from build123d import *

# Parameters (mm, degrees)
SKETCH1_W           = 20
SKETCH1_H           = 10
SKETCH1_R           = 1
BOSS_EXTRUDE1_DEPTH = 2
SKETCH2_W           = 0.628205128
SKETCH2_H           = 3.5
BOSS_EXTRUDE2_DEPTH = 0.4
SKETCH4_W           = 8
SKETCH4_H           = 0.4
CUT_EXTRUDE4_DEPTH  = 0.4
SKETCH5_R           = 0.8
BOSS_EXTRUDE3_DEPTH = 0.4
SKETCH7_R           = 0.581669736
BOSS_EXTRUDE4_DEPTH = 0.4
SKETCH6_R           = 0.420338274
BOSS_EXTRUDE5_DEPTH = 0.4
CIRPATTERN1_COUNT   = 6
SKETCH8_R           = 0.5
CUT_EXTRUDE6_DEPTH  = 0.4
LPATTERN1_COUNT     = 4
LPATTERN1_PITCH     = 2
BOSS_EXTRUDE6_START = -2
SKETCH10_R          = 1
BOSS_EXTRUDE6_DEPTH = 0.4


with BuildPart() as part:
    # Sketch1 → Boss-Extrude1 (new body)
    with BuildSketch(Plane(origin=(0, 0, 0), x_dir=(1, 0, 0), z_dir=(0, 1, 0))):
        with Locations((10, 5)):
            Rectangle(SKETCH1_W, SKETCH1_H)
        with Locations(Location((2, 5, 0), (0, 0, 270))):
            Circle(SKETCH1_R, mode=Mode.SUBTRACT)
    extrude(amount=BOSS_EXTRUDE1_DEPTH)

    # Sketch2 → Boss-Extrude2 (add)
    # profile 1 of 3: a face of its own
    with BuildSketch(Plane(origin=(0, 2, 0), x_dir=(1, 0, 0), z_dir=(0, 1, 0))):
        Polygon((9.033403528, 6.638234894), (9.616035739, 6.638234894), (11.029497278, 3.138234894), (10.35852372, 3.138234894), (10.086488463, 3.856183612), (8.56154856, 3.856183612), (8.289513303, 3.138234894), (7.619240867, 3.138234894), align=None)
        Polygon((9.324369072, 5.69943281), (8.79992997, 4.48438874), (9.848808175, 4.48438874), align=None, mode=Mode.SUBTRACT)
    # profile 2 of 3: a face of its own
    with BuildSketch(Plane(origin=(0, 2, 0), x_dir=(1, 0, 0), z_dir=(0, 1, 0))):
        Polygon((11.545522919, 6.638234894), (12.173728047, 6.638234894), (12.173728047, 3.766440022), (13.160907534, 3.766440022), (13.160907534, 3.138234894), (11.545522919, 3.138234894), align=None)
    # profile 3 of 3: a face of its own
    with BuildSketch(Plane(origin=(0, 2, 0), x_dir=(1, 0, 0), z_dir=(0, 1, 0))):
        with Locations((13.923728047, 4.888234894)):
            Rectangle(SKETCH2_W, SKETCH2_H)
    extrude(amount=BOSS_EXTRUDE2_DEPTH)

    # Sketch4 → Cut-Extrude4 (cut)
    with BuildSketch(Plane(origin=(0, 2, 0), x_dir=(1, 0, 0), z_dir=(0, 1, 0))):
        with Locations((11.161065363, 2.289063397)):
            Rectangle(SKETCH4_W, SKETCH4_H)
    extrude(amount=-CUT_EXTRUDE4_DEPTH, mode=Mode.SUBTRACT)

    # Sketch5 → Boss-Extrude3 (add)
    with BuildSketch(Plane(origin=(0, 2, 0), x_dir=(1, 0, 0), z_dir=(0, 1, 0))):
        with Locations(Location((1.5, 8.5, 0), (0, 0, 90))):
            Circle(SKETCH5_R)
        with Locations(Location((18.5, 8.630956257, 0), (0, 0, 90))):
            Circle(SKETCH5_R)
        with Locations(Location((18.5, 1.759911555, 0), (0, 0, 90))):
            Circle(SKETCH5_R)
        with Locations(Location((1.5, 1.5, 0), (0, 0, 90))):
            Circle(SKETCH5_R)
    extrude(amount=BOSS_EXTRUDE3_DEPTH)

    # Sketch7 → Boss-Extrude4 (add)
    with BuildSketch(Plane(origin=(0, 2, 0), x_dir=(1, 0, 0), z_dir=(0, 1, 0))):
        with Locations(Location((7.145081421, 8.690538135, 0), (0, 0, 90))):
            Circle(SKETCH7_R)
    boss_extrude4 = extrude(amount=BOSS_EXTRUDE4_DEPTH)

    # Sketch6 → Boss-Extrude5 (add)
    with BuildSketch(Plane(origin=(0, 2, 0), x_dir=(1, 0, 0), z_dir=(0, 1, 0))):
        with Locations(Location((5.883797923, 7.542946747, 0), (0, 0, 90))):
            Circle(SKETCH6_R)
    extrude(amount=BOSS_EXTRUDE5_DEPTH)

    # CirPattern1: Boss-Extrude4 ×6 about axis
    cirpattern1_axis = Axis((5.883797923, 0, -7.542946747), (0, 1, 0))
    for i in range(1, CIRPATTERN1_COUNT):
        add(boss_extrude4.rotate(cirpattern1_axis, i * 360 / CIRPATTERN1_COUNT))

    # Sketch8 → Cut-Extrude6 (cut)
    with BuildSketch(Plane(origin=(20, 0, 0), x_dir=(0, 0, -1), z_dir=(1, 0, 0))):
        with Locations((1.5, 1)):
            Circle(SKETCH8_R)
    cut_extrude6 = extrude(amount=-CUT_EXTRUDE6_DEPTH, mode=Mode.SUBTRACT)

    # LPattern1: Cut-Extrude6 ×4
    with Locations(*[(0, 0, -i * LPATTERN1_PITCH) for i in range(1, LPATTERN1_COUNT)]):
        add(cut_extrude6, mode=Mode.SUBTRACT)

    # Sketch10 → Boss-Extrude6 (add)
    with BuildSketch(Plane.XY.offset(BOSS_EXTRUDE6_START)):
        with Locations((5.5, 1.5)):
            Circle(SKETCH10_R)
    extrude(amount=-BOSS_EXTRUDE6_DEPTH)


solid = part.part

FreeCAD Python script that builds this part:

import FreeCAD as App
import Part
import Sketcher
from FreeCAD import Vector
Q = App.Units.Quantity

doc = App.newDocument("Part")
params = doc.addObject("Spreadsheet::Sheet", "Params")
for row, (alias, value) in enumerate([
    ("sketch1_diameter", "2 mm"),
    ("sketch1_width", "20 mm"),
    ("sketch1_height", "10 mm"),
    ("pad1_length", "2 mm"),
    ("sketch2_height", "3.5 mm"),
    ("pad2_length", "0.4 mm"),
    ("sketch3_width", "8 mm"),
    ("sketch3_height", "0.4 mm"),
    ("pocket1_length", "0.4 mm"),
    ("sketch4_diameter", "1.6 mm"),
    ("pad3_length", "0.4 mm"),
    ("pad4_length", "0.4 mm"),
    ("pad5_length", "0.4 mm"),
    ("sketch7_diameter", "1 mm"),
    ("pocket2_length", "0.4 mm"),
    ("linearpattern_pitch", "2 mm"),
    ("sketch8_diameter", "2 mm"),
    ("pad6_length", "0.4 mm"),
], start=1):
    params.set(f"A{row}", alias)
    params.set(f"B{row}", "=" + value)
    params.setAlias(f"B{row}", alias)

body = doc.addObject("PartDesign::Body", "Body")

sketch1 = doc.addObject("Sketcher::SketchObject", "Sketch")
body.addObject(sketch1)
sketch1.AttachmentSupport = (doc.XZ_Plane, [""])
sketch1.MapMode = "FlatFace"
sketch1.addGeometry(Part.LineSegment(Vector(0, -10, 0), Vector(0, 0, 0)), False)
sketch1.addGeometry(Part.LineSegment(Vector(0, 0, 0), Vector(20, 0, 0)), False)
sketch1.addGeometry(Part.LineSegment(Vector(20, 0, 0), Vector(20, -10, 0)), False)
sketch1.addGeometry(Part.LineSegment(Vector(20, -10, 0), Vector(0, -10, 0)), False)
sketch1.addGeometry(Part.Circle(Vector(2, -5, 0), Vector(0, 0, 1), 1), False)
sketch1.addConstraint(Sketcher.Constraint("Coincident", 0, 2, 1, 1))
sketch1.addConstraint(Sketcher.Constraint("Coincident", 1, 2, 2, 1))
sketch1.addConstraint(Sketcher.Constraint("Coincident", 2, 2, 3, 1))
sketch1.addConstraint(Sketcher.Constraint("Coincident", 3, 2, 0, 1))
sketch1.addConstraint(Sketcher.Constraint("Vertical", 0))
sketch1.addConstraint(Sketcher.Constraint("Horizontal", 1))
sketch1.addConstraint(Sketcher.Constraint("Vertical", 2))
sketch1.addConstraint(Sketcher.Constraint("Horizontal", 3))
sketch1.addConstraint(Sketcher.Constraint("Coincident", 0, 2, -1, 1))
sketch1.addConstraint(Sketcher.Constraint("Diameter", 4, Q("2 mm")))
sketch1.addConstraint(Sketcher.Constraint("DistanceX", 1, 1, 1, 2, Q("20 mm")))
sketch1.addConstraint(Sketcher.Constraint("DistanceY", 0, 1, 0, 2, Q("10 mm")))
sketch1.addConstraint(Sketcher.Constraint("DistanceX", -1, 1, 4, 3, Q("2 mm")))
sketch1.addConstraint(Sketcher.Constraint("DistanceY", 4, 3, -1, 1, Q("5 mm")))
sketch1.setExpression("Constraints[9]", "Params.sketch1_diameter")
sketch1.setExpression("Constraints[10]", "Params.sketch1_width")
sketch1.setExpression("Constraints[11]", "Params.sketch1_height")
pad1 = doc.addObject("PartDesign::Pad", "Pad")
body.addObject(pad1)
pad1.Profile = sketch1
pad1.setExpression("Length", "Params.pad1_length")
pad1.Reversed = True

sketch2 = doc.addObject("Sketcher::SketchObject", "Sketch001")
body.addObject(sketch2)
sketch2.AttachmentSupport = (doc.XZ_Plane, [""])
sketch2.MapMode = "FlatFace"
sketch2.AttachmentOffset = App.Placement(Vector(0, 0, -2), App.Rotation())
sketch2.addGeometry(Part.LineSegment(Vector(9.6, -6.6, 0), Vector(9, -6.6, 0)), False)
sketch2.addGeometry(Part.LineSegment(Vector(9, -6.6, 0), Vector(7.6, -3.1, 0)), False)
sketch2.addGeometry(Part.LineSegment(Vector(7.6, -3.1, 0), Vector(8.3, -3.1, 0)), False)
sketch2.addGeometry(Part.LineSegment(Vector(8.3, -3.1, 0), Vector(8.6, -3.9, 0)), False)
sketch2.addGeometry(Part.LineSegment(Vector(8.6, -3.9, 0), Vector(10.1, -3.9, 0)), False)
sketch2.addGeometry(Part.LineSegment(Vector(10.1, -3.9, 0), Vector(10.4, -3.1, 0)), False)
sketch2.addGeometry(Part.LineSegment(Vector(10.4, -3.1, 0), Vector(11, -3.1, 0)), False)
sketch2.addGeometry(Part.LineSegment(Vector(11, -3.1, 0), Vector(9.6, -6.6, 0)), False)
sketch2.addGeometry(Part.LineSegment(Vector(9.3, -5.7, 0), Vector(9.8, -4.5, 0)), False)
sketch2.addGeometry(Part.LineSegment(Vector(9.8, -4.5, 0), Vector(8.8, -4.5, 0)), False)
sketch2.addGeometry(Part.LineSegment(Vector(8.8, -4.5, 0), Vector(9.3, -5.7, 0)), False)
sketch2.addGeometry(Part.LineSegment(Vector(12.2, -6.6, 0), Vector(11.5, -6.6, 0)), False)
sketch2.addGeometry(Part.LineSegment(Vector(11.5, -6.6, 0), Vector(11.5, -3.1, 0)), False)
sketch2.addGeometry(Part.LineSegment(Vector(11.5, -3.1, 0), Vector(13.2, -3.1, 0)), False)
sketch2.addGeometry(Part.LineSegment(Vector(13.2, -3.1, 0), Vector(13.2, -3.8, 0)), False)
sketch2.addGeometry(Part.LineSegment(Vector(13.2, -3.8, 0), Vector(12.2, -3.8, 0)), False)
sketch2.addGeometry(Part.LineSegment(Vector(12.2, -3.8, 0), Vector(12.2, -6.6, 0)), False)
sketch2.addGeometry(Part.LineSegment(Vector(13.6, -6.6, 0), Vector(13.6, -3.1, 0)), False)
sketch2.addGeometry(Part.LineSegment(Vector(13.6, -3.1, 0), Vector(14.2, -3.1, 0)), False)
sketch2.addGeometry(Part.LineSegment(Vector(14.2, -3.1, 0), Vector(14.2, -6.6, 0)), False)
sketch2.addGeometry(Part.LineSegment(Vector(14.2, -6.6, 0), Vector(13.6, -6.6, 0)), False)
sketch2.addConstraint(Sketcher.Constraint("Coincident", 0, 2, 1, 1))
sketch2.addConstraint(Sketcher.Constraint("Coincident", 1, 2, 2, 1))
sketch2.addConstraint(Sketcher.Constraint("Coincident", 2, 2, 3, 1))
sketch2.addConstraint(Sketcher.Constraint("Coincident", 3, 2, 4, 1))
sketch2.addConstraint(Sketcher.Constraint("Coincident", 4, 2, 5, 1))
sketch2.addConstraint(Sketcher.Constraint("Coincident", 5, 2, 6, 1))
sketch2.addConstraint(Sketcher.Constraint("Coincident", 6, 2, 7, 1))
sketch2.addConstraint(Sketcher.Constraint("Coincident", 7, 2, 0, 1))
sketch2.addConstraint(Sketcher.Constraint("Coincident", 8, 2, 9, 1))
sketch2.addConstraint(Sketcher.Constraint("Coincident", 9, 2, 10, 1))
sketch2.addConstraint(Sketcher.Constraint("Coincident", 10, 2, 8, 1))
sketch2.addConstraint(Sketcher.Constraint("Coincident", 11, 2, 12, 1))
sketch2.addConstraint(Sketcher.Constraint("Coincident", 12, 2, 13, 1))
sketch2.addConstraint(Sketcher.Constraint("Coincident", 13, 2, 14, 1))
sketch2.addConstraint(Sketcher.Constraint("Coincident", 14, 2, 15, 1))
sketch2.addConstraint(Sketcher.Constraint("Coincident", 15, 2, 16, 1))
sketch2.addConstraint(Sketcher.Constraint("Coincident", 16, 2, 11, 1))
sketch2.addConstraint(Sketcher.Constraint("Coincident", 17, 2, 18, 1))
sketch2.addConstraint(Sketcher.Constraint("Coincident", 18, 2, 19, 1))
sketch2.addConstraint(Sketcher.Constraint("Coincident", 19, 2, 20, 1))
sketch2.addConstraint(Sketcher.Constraint("Coincident", 20, 2, 17, 1))
sketch2.addConstraint(Sketcher.Constraint("Horizontal", 0))
sketch2.addConstraint(Sketcher.Constraint("Horizontal", 2))
sketch2.addConstraint(Sketcher.Constraint("Horizontal", 4))
sketch2.addConstraint(Sketcher.Constraint("Horizontal", 6))
sketch2.addConstraint(Sketcher.Constraint("Horizontal", 9))
sketch2.addConstraint(Sketcher.Constraint("Horizontal", 11))
sketch2.addConstraint(Sketcher.Constraint("Vertical", 12))
sketch2.addConstraint(Sketcher.Constraint("Horizontal", 13))
sketch2.addConstraint(Sketcher.Constraint("Vertical", 14))
sketch2.addConstraint(Sketcher.Constraint("Horizontal", 15))
sketch2.addConstraint(Sketcher.Constraint("Vertical", 16))
sketch2.addConstraint(Sketcher.Constraint("Vertical", 17))
sketch2.addConstraint(Sketcher.Constraint("Horizontal", 18))
sketch2.addConstraint(Sketcher.Constraint("Vertical", 19))
sketch2.addConstraint(Sketcher.Constraint("Horizontal", 20))
sketch2.addConstraint(Sketcher.Constraint("Horizontal", 2, 2, 5, 2))
sketch2.addConstraint(Sketcher.Constraint("Horizontal", 7, 2, 11, 2))
sketch2.addConstraint(Sketcher.Constraint("Horizontal", 6, 2, 12, 2))
sketch2.addConstraint(Sketcher.Constraint("Horizontal", 13, 2, 17, 2))
sketch2.addConstraint(Sketcher.Constraint("Horizontal", 16, 2, 19, 2))
sketch2.addConstraint(Sketcher.Constraint("Equal", 11, 18))
sketch2.addConstraint(Sketcher.Constraint("Equal", 20, 14))
sketch2.addConstraint(Sketcher.Constraint("Equal", 3, 5))
sketch2.addConstraint(Sketcher.Constraint("Equal", 8, 10))
sketch2.addConstraint(Sketcher.Constraint("DistanceY", 12, 1, 12, 2, Q("3.5 mm")))
sketch2.addConstraint(Sketcher.Constraint("DistanceX", 5, 2, 12, 2, Q("1.186999 mm")))
sketch2.addConstraint(Sketcher.Constraint("Distance", 1, Q("3.774898 mm")))
sketch2.addConstraint(Sketcher.Constraint("DistanceX", 4, 1, 4, 2, Q("1.52494 mm")))
sketch2.addConstraint(Sketcher.Constraint("DistanceX", 9, 2, 9, 1, Q("1.048878 mm")))
sketch2.addConstraint(Sketcher.Constraint("DistanceX", 15, 2, 15, 1, Q("0.987179 mm")))
sketch2.addConstraint(Sketcher.Constraint("DistanceX", 8, 2, 13, 2, Q("3.312099 mm")))
sketch2.addConstraint(Sketcher.Constraint("Distance", 3, Q("0.767759 mm")))
sketch2.addConstraint(Sketcher.Constraint("DistanceX", 0, 2, 0, 1, Q("0.582632 mm")))
sketch2.addConstraint(Sketcher.Constraint("DistanceX", 2, 1, 2, 2, Q("0.670272 mm")))
sketch2.addConstraint(Sketcher.Constraint("DistanceX", 6, 1, 6, 2, Q("0.670974 mm")))
sketch2.addConstraint(Sketcher.Constraint("DistanceX", 11, 2, 11, 1, Q("0.628205 mm")))
sketch2.addConstraint(Sketcher.Constraint("DistanceX", -1, 1, 1, 2, Q("7.619241 mm")))
sketch2.addConstraint(Sketcher.Constraint("DistanceX", -1, 1, 3, 2, Q("8.561549 mm")))
sketch2.addConstraint(Sketcher.Constraint("DistanceY", 8, 2, -1, 1, Q("4.484389 mm")))
sketch2.addConstraint(Sketcher.Constraint("DistanceY", 14, 2, -1, 1, Q("3.76644 mm")))
sketch2.addConstraint(Sketcher.Constraint("DistanceX", -1, 1, 18, 2, Q("14.237831 mm")))
sketch2.addConstraint(Sketcher.Constraint("DistanceY", 10, 2, 4, 2, Q("1.843249 mm")))
sketch2.setExpression("Constraints[45]", "Params.sketch2_height")
pad2 = doc.addObject("PartDesign::Pad", "Pad001")
body.addObject(pad2)
pad2.Profile = sketch2
pad2.setExpression("Length", "Params.pad2_length")
pad2.Reversed = True

sketch3 = doc.addObject("Sketcher::SketchObject", "Sketch002")
body.addObject(sketch3)
sketch3.AttachmentSupport = (doc.XZ_Plane, [""])
sketch3.MapMode = "FlatFace"
sketch3.AttachmentOffset = App.Placement(Vector(0, 0, -2), App.Rotation())
sketch3.addGeometry(Part.LineSegment(Vector(7.16, -2.49, 0), Vector(7.16, -2.09, 0)), False)
sketch3.addGeometry(Part.LineSegment(Vector(7.16, -2.09, 0), Vector(15.16, -2.09, 0)), False)
sketch3.addGeometry(Part.LineSegment(Vector(15.16, -2.09, 0), Vector(15.16, -2.49, 0)), False)
sketch3.addGeometry(Part.LineSegment(Vector(15.16, -2.49, 0), Vector(7.16, -2.49, 0)), False)
sketch3.addConstraint(Sketcher.Constraint("Coincident", 0, 2, 1, 1))
sketch3.addConstraint(Sketcher.Constraint("Coincident", 1, 2, 2, 1))
sketch3.addConstraint(Sketcher.Constraint("Coincident", 2, 2, 3, 1))
sketch3.addConstraint(Sketcher.Constraint("Coincident", 3, 2, 0, 1))
sketch3.addConstraint(Sketcher.Constraint("Vertical", 0))
sketch3.addConstraint(Sketcher.Constraint("Horizontal", 1))
sketch3.addConstraint(Sketcher.Constraint("Vertical", 2))
sketch3.addConstraint(Sketcher.Constraint("Horizontal", 3))
sketch3.addConstraint(Sketcher.Constraint("DistanceX", 1, 1, 1, 2, Q("8 mm")))
sketch3.addConstraint(Sketcher.Constraint("DistanceY", 0, 1, 0, 2, Q("0.4 mm")))
sketch3.addConstraint(Sketcher.Constraint("DistanceX", -1, 1, 0, 2, Q("7.161065 mm")))
sketch3.addConstraint(Sketcher.Constraint("DistanceY", 0, 2, -1, 1, Q("2.089063 mm")))
sketch3.setExpression("Constraints[8]", "Params.sketch3_width")
sketch3.setExpression("Constraints[9]", "Params.sketch3_height")
pocket1 = doc.addObject("PartDesign::Pocket", "Pocket")
body.addObject(pocket1)
pocket1.Profile = sketch3
pocket1.setExpression("Length", "Params.pocket1_length")
pocket1.Reversed = True

sketch4 = doc.addObject("Sketcher::SketchObject", "Sketch003")
body.addObject(sketch4)
sketch4.AttachmentSupport = (doc.XZ_Plane, [""])
sketch4.MapMode = "FlatFace"
sketch4.AttachmentOffset = App.Placement(Vector(0, 0, -2), App.Rotation())
sketch4.addGeometry(Part.Circle(Vector(1.5, -8.5, 0), Vector(0, 0, 1), 0.8), False)
sketch4.addGeometry(Part.Circle(Vector(18.5, -8.6, 0), Vector(0, 0, 1), 0.8), False)
sketch4.addGeometry(Part.Circle(Vector(18.5, -1.8, 0), Vector(0, 0, 1), 0.8), False)
sketch4.addGeometry(Part.Circle(Vector(1.5, -1.5, 0), Vector(0, 0, 1), 0.8), False)
sketch4.addConstraint(Sketcher.Constraint("Equal", 0, 1))
sketch4.addConstraint(Sketcher.Constraint("Equal", 1, 2))
sketch4.addConstraint(Sketcher.Constraint("Equal", 2, 3))
sketch4.addConstraint(Sketcher.Constraint("Vertical", 1, 3, 2, 3))
sketch4.addConstraint(Sketcher.Constraint("Vertical", 0, 3, 3, 3))
sketch4.addConstraint(Sketcher.Constraint("Diameter", 0, Q("1.6 mm")))
sketch4.addConstraint(Sketcher.Constraint("DistanceX", 0, 3, 1, 3, Q("17 mm")))
sketch4.addConstraint(Sketcher.Constraint("DistanceY", 0, 3, 3, 3, Q("7 mm")))
sketch4.addConstraint(Sketcher.Constraint("DistanceX", -1, 1, 0, 3, Q("1.5 mm")))
sketch4.addConstraint(Sketcher.Constraint("DistanceY", 0, 3, -1, 1, Q("8.5 mm")))
sketch4.addConstraint(Sketcher.Constraint("DistanceY", 2, 3, -1, 1, Q("1.759912 mm")))
sketch4.addConstraint(Sketcher.Constraint("DistanceY", 1, 3, -1, 1, Q("8.630956 mm")))
sketch4.setExpression("Constraints[5]", "Params.sketch4_diameter")
pad3 = doc.addObject("PartDesign::Pad", "Pad002")
body.addObject(pad3)
pad3.Profile = sketch4
pad3.setExpression("Length", "Params.pad3_length")
pad3.Reversed = True

sketch5 = doc.addObject("Sketcher::SketchObject", "Sketch004")
body.addObject(sketch5)
sketch5.AttachmentSupport = (doc.XZ_Plane, [""])
sketch5.MapMode = "FlatFace"
sketch5.AttachmentOffset = App.Placement(Vector(0, 0, -2), App.Rotation())
sketch5.addGeometry(Part.Circle(Vector(7.1, -8.7, 0), Vector(0, 0, 1), 0.6), False)
sketch5.addConstraint(Sketcher.Constraint("Diameter", 0, Q("1.163339 mm")))
sketch5.addConstraint(Sketcher.Constraint("DistanceX", -1, 1, 0, 3, Q("7.145081 mm")))
sketch5.addConstraint(Sketcher.Constraint("DistanceY", 0, 3, -1, 1, Q("8.690538 mm")))
pad4 = doc.addObject("PartDesign::Pad", "Pad003")
body.addObject(pad4)
pad4.Profile = sketch5
pad4.setExpression("Length", "Params.pad4_length")
pad4.Reversed = True

sketch6 = doc.addObject("Sketcher::SketchObject", "Sketch005")
body.addObject(sketch6)
sketch6.AttachmentSupport = (doc.XZ_Plane, [""])
sketch6.MapMode = "FlatFace"
sketch6.AttachmentOffset = App.Placement(Vector(0, 0, -2), App.Rotation())
sketch6.addGeometry(Part.Circle(Vector(5.88, -7.54, 0), Vector(0, 0, 1), 0.42), False)
sketch6.addConstraint(Sketcher.Constraint("Diameter", 0, Q("0.840677 mm")))
sketch6.addConstraint(Sketcher.Constraint("DistanceX", -1, 1, 0, 3, Q("5.883798 mm")))
sketch6.addConstraint(Sketcher.Constraint("DistanceY", 0, 3, -1, 1, Q("7.542947 mm")))
pad5 = doc.addObject("PartDesign::Pad", "Pad004")
body.addObject(pad5)
pad5.Profile = sketch6
pad5.setExpression("Length", "Params.pad5_length")
pad5.Reversed = True
doc.recompute()

datumline = doc.addObject("PartDesign::Line", "DatumLine")
body.addObject(datumline)
datumline.Placement = App.Placement(Vector(5.883798, 0, -7.542947), App.Rotation(Vector(0, 0, 1), Vector(0, 1, 0)))
polarpattern = doc.addObject("PartDesign::PolarPattern", "PolarPattern")
body.addObject(polarpattern)
polarpattern.Originals = [pad4]
polarpattern.Axis = (datumline, [""])
polarpattern.Angle = 360
polarpattern.Occurrences = 6
body.Tip = polarpattern

sketch7 = doc.addObject("Sketcher::SketchObject", "Sketch006")
body.addObject(sketch7)
sketch7.AttachmentSupport = (doc.YZ_Plane, [""])
sketch7.MapMode = "FlatFace"
sketch7.AttachmentOffset = App.Placement(Vector(0, 0, 20), App.Rotation())
sketch7.addGeometry(Part.Circle(Vector(1, -1.5, 0), Vector(0, 0, 1), 0.5), False)
sketch7.addConstraint(Sketcher.Constraint("Diameter", 0, Q("1 mm")))
sketch7.addConstraint(Sketcher.Constraint("DistanceX", -1, 1, 0, 3, Q("1 mm")))
sketch7.addConstraint(Sketcher.Constraint("DistanceY", 0, 3, -1, 1, Q("1.5 mm")))
sketch7.setExpression("Constraints[0]", "Params.sketch7_diameter")
pocket2 = doc.addObject("PartDesign::Pocket", "Pocket001")
body.addObject(pocket2)
pocket2.Profile = sketch7
pocket2.setExpression("Length", "Params.pocket2_length")
doc.recompute()

linearpattern = doc.addObject("PartDesign::LinearPattern", "LinearPattern")
body.addObject(linearpattern)
linearpattern.Originals = [pocket2]
linearpattern.Direction = (doc.Z_Axis, [""])
linearpattern.Mode = "offset"
linearpattern.setExpression("Offset", "Params.linearpattern_pitch")
linearpattern.Occurrences = 4
linearpattern.Reversed = True
body.Tip = linearpattern

sketch8 = doc.addObject("Sketcher::SketchObject", "Sketch007")
body.addObject(sketch8)
sketch8.AttachmentSupport = (doc.XY_Plane, [""])
sketch8.MapMode = "FlatFace"
sketch8.AttachmentOffset = App.Placement(Vector(0, 0, -2), App.Rotation())
sketch8.addGeometry(Part.Circle(Vector(5.5, 1.5, 0), Vector(0, 0, 1), 1), False)
sketch8.addConstraint(Sketcher.Constraint("Diameter", 0, Q("2 mm")))
sketch8.addConstraint(Sketcher.Constraint("DistanceX", -1, 1, 0, 3, Q("5.5 mm")))
sketch8.addConstraint(Sketcher.Constraint("DistanceY", -1, 1, 0, 3, Q("1.5 mm")))
sketch8.setExpression("Constraints[0]", "Params.sketch8_diameter")
pad6 = doc.addObject("PartDesign::Pad", "Pad005")
body.addObject(pad6)
pad6.Profile = sketch8
pad6.setExpression("Length", "Params.pad6_length")
pad6.Reversed = True

doc.recompute()
